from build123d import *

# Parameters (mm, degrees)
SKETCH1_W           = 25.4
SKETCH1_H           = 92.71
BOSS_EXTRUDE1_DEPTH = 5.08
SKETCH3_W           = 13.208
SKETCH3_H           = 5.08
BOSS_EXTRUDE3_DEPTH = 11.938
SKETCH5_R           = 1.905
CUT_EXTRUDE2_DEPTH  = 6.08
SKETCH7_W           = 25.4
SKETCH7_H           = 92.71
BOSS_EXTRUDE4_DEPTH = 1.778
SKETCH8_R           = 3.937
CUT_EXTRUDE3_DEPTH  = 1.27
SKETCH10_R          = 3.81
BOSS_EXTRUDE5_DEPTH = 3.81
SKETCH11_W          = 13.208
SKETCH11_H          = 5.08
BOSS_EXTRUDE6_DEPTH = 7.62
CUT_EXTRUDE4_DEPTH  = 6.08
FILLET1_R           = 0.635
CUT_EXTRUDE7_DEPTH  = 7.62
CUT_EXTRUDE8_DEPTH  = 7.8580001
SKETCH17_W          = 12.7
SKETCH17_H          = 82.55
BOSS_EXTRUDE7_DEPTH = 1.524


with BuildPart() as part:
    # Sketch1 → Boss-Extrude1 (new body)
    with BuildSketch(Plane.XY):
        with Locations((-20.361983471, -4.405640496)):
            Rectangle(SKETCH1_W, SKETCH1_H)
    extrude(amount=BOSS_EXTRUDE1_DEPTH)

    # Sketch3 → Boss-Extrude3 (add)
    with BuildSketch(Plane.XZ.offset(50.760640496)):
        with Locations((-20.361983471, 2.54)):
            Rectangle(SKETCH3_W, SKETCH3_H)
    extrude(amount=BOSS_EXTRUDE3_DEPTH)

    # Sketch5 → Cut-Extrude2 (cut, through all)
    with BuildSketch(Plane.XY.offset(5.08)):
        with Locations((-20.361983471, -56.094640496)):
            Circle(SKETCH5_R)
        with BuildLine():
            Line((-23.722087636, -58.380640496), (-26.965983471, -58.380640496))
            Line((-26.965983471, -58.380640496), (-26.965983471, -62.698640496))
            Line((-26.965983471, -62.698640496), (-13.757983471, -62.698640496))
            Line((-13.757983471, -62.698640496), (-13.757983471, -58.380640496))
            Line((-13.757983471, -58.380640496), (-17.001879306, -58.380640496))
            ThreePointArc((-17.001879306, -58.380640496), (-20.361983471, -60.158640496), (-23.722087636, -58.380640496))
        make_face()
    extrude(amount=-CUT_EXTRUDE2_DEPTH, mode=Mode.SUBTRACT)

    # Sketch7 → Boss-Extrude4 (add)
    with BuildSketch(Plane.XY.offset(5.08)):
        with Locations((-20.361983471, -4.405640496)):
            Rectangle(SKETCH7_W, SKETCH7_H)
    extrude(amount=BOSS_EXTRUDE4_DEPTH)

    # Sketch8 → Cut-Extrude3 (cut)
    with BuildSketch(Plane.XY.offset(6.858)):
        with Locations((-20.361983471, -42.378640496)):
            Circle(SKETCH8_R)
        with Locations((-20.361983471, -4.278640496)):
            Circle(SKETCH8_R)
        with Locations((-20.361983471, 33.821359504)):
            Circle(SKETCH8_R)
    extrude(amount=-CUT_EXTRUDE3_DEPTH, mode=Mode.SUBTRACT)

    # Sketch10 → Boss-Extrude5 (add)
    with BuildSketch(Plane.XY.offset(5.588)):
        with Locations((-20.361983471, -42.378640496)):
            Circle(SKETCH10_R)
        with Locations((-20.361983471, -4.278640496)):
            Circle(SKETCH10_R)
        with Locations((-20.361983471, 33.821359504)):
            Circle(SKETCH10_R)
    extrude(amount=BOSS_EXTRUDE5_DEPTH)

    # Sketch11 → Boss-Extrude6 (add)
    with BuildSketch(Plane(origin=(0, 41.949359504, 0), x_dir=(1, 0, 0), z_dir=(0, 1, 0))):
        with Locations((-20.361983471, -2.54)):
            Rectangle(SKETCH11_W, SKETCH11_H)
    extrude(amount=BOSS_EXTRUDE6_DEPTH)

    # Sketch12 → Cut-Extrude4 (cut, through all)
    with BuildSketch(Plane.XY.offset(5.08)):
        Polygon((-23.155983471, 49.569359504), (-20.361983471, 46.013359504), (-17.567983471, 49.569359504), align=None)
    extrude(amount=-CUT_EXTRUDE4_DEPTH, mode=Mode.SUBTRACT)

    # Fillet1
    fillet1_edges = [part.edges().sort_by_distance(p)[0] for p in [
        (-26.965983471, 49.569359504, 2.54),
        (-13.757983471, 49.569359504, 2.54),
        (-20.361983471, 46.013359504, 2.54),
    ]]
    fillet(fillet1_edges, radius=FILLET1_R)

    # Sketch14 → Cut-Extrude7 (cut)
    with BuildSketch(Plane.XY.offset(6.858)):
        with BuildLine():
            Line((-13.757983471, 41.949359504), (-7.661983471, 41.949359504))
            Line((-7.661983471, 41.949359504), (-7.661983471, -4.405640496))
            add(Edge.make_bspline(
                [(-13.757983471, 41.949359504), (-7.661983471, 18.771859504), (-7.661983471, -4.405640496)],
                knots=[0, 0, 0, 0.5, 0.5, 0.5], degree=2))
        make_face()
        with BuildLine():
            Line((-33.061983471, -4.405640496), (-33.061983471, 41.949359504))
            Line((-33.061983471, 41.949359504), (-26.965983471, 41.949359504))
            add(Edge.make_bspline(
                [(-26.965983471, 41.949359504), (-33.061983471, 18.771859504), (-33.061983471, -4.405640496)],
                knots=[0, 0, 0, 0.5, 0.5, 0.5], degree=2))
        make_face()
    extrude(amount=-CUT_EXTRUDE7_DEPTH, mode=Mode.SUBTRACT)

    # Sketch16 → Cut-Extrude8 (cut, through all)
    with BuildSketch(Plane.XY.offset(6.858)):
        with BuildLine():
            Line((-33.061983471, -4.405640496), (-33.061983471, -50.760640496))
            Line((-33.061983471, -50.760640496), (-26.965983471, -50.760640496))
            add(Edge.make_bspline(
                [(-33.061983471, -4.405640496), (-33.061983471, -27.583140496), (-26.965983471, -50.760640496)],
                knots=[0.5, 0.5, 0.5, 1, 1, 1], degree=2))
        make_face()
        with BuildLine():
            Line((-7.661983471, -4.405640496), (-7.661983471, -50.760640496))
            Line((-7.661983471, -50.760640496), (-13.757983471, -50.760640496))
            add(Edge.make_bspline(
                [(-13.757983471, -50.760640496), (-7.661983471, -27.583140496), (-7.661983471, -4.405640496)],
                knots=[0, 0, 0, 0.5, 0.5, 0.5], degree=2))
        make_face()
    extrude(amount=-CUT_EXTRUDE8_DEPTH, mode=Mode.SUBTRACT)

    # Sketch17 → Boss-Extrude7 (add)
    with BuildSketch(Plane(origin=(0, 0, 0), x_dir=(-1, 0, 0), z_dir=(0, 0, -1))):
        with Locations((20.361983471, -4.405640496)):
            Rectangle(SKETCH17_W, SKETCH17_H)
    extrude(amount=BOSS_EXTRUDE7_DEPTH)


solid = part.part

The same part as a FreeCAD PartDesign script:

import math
import FreeCAD as App
import Part
import Sketcher

V = App.Vector
Q = App.Units.Quantity


def edges_at(feature, points):
    """Names of the edges that pass closest to the given points."""
    edges = feature.Shape.Edges
    near = lambda p: min(range(len(edges)), key=lambda i: edges[i].distToShape(Part.Vertex(*p))[0])
    return sorted({f"Edge{near(p) + 1}" for p in points})

doc = App.newDocument("Part")
body = doc.addObject("PartDesign::Body", "Body")

# Sketch on XY plane
sketch1 = body.newObject("Sketcher::SketchObject", "Sketch")
sketch1.AttachmentSupport = (doc.getObject("XY_Plane"), [""])
sketch1.MapMode = "FlatFace"
sketch1.addGeometry([
    Part.LineSegment(V(-33.061983, 41.94936, 0), V(-33.061983, -50.76064, 0)),
    Part.LineSegment(V(-33.061983, -50.76064, 0), V(-7.661983, -50.76064, 0)),
    Part.LineSegment(V(-7.661983, -50.76064, 0), V(-7.661983, 41.94936, 0)),
    Part.LineSegment(V(-7.661983, 41.94936, 0), V(-33.061983, 41.94936, 0)),
], False)
sketch1.addConstraint([
    Sketcher.Constraint("Coincident", 0, 2, 1, 1),
    Sketcher.Constraint("Coincident", 1, 2, 2, 1),
    Sketcher.Constraint("Coincident", 2, 2, 3, 1),
    Sketcher.Constraint("Coincident", 3, 2, 0, 1),
    Sketcher.Constraint("Vertical", 0),
    Sketcher.Constraint("Horizontal", 1),
    Sketcher.Constraint("Vertical", 2),
    Sketcher.Constraint("Horizontal", 3),
    Sketcher.Constraint("DistanceX", 1, 1, 1, 2, Q("1 in")),
    Sketcher.Constraint("DistanceY", 0, 2, 0, 1, Q("3.65 in")),
    Sketcher.Constraint("DistanceY", 0, 2, -1, 1, Q("50.76064 mm")),
    Sketcher.Constraint("DistanceX", 0, 2, -1, 1, Q("33.061983 mm")),
])
pad1 = body.newObject("PartDesign::Pad", "Pad")
pad1.Profile = sketch1
pad1.Length = Q("0.2 in")

# Sketch on XZ plane
sketch2 = body.newObject("Sketcher::SketchObject", "Sketch001")
sketch2.AttachmentSupport = (doc.getObject("XZ_Plane"), [""])
sketch2.MapMode = "FlatFace"
sketch2.AttachmentOffset = App.Placement(V(0, 0, 50.76064), App.Rotation())
sketch2.addGeometry([
    Part.LineSegment(V(-26.965983, 5.08, 0), V(-26.965983, 0, 0)),
    Part.LineSegment(V(-26.965983, 0, 0), V(-13.757983, 0, 0)),
    Part.LineSegment(V(-13.757983, 0, 0), V(-13.757983, 5.08, 0)),
    Part.LineSegment(V(-13.757983, 5.08, 0), V(-26.965983, 5.08, 0)),
], False)
sketch2.addConstraint([
    Sketcher.Constraint("Coincident", 0, 2, 1, 1),
    Sketcher.Constraint("Coincident", 1, 2, 2, 1),
    Sketcher.Constraint("Coincident", 2, 2, 3, 1),
    Sketcher.Constraint("Coincident", 3, 2, 0, 1),
    Sketcher.Constraint("Vertical", 0),
    Sketcher.Constraint("Horizontal", 1),
    Sketcher.Constraint("Vertical", 2),
    Sketcher.Constraint("Horizontal", 3),
    Sketcher.Constraint("PointOnObject", 0, 2, -1),
    Sketcher.Constraint("DistanceY", 0, 2, 0, 1, Q("0.2 in")),
    Sketcher.Constraint("DistanceX", 1, 1, 1, 2, Q("0.52 in")),
    Sketcher.Constraint("DistanceX", 0, 2, -1, 1, Q("26.965983 mm")),
])
pad2 = body.newObject("PartDesign::Pad", "Pad001")
pad2.Profile = sketch2
pad2.Length = Q("0.47 in")

# Sketch on XY plane
sketch3 = body.newObject("Sketcher::SketchObject", "Sketch002")
sketch3.AttachmentSupport = (doc.getObject("XY_Plane"), [""])
sketch3.MapMode = "FlatFace"
sketch3.AttachmentOffset = App.Placement(V(0, 0, 0.2 * 25.4), App.Rotation())
sketch3.addGeometry([
    Part.Circle(V(-20.361983, -56.09464, 0), V(0, 0, 1), 1.905),  # 0
    Part.LineSegment(V(-23.722088, -58.38064, 0), V(-26.965983, -58.38064, 0)),  # 1
    Part.LineSegment(V(-26.965983, -58.38064, 0), V(-26.965983, -62.69864, 0)),  # 2
    Part.LineSegment(V(-26.965983, -62.69864, 0), V(-13.757983, -62.69864, 0)),  # 3
    Part.LineSegment(V(-13.757983, -62.69864, 0), V(-13.757983, -58.38064, 0)),  # 4
    Part.LineSegment(V(-13.757983, -58.38064, 0), V(-17.001879, -58.38064, 0)),  # 5
    Part.ArcOfCircle(Part.Circle(V(-20.361983, -56.09464, 0), V(0, 0, 1), 4.064), math.radians(-145.771134), math.radians(-34.228866)),  # 6
], False)
sketch3.addConstraint([
    Sketcher.Constraint("Coincident", 1, 2, 2, 1),
    Sketcher.Constraint("Coincident", 2, 2, 3, 1),
    Sketcher.Constraint("Coincident", 3, 2, 4, 1),
    Sketcher.Constraint("Coincident", 4, 2, 5, 1),
    Sketcher.Constraint("Coincident", 5, 2, 6, 2),
    Sketcher.Constraint("Coincident", 6, 1, 1, 1),
    Sketcher.Constraint("Horizontal", 1),
    Sketcher.Constraint("Vertical", 2),
    Sketcher.Constraint("Horizontal", 3),
    Sketcher.Constraint("Vertical", 4),
    Sketcher.Constraint("Horizontal", 5),
    Sketcher.Constraint("Coincident", 6, 3, 0, 3),
    Sketcher.Constraint("Horizontal", 1, 2, 4, 2),
    Sketcher.Constraint("Equal", 1, 5),
    Sketcher.Constraint("Diameter", 0, Q("0.15 in")),
    Sketcher.Constraint("Radius", 6, Q("0.16 in")),
    Sketcher.Constraint("DistanceX", 3, 1, 3, 2, Q("0.52 in")),
    Sketcher.Constraint("DistanceY", 2, 2, 2, 1, Q("0.17 in")),
    Sketcher.Constraint("DistanceY", 1, 2, 0, 3, Q("0.09 in")),
    Sketcher.Constraint("DistanceY", 0, 3, -1, 1, Q("56.09464 mm")),
    Sketcher.Constraint("DistanceX", 5, 2, -1, 1, Q("17.001879 mm")),
])
pocket1 = body.newObject("PartDesign::Pocket", "Pocket")
pocket1.Profile = sketch3
pocket1.Type = "ThroughAll"

# Sketch on XY plane
sketch4 = body.newObject("Sketcher::SketchObject", "Sketch003")
sketch4.AttachmentSupport = (doc.getObject("XY_Plane"), [""])
sketch4.MapMode = "FlatFace"
sketch4.AttachmentOffset = App.Placement(V(0, 0, 0.2 * 25.4), App.Rotation())
sketch4.addGeometry([
    Part.LineSegment(V(-33.061983, 41.94936, 0), V(-33.061983, -50.76064, 0)),
    Part.LineSegment(V(-33.061983, -50.76064, 0), V(-7.661983, -50.76064, 0)),
    Part.LineSegment(V(-7.661983, -50.76064, 0), V(-7.661983, 41.94936, 0)),
    Part.LineSegment(V(-7.661983, 41.94936, 0), V(-33.061983, 41.94936, 0)),
], False)
sketch4.addConstraint([
    Sketcher.Constraint("Coincident", 0, 2, 1, 1),
    Sketcher.Constraint("Coincident", 1, 2, 2, 1),
    Sketcher.Constraint("Coincident", 2, 2, 3, 1),
    Sketcher.Constraint("Coincident", 3, 2, 0, 1),
    Sketcher.Constraint("Vertical", 0),
    Sketcher.Constraint("Horizontal", 1),
    Sketcher.Constraint("Vertical", 2),
    Sketcher.Constraint("Horizontal", 3),
    Sketcher.Constraint("DistanceX", 1, 1, 1, 2, Q("1 in")),
    Sketcher.Constraint("DistanceY", 0, 2, 0, 1, Q("3.65 in")),
    Sketcher.Constraint("DistanceY", 0, 2, -1, 1, Q("50.76064 mm")),
    Sketcher.Constraint("DistanceX", 0, 2, -1, 1, Q("33.061983 mm")),
])
pad3 = body.newObject("PartDesign::Pad", "Pad002")
pad3.Profile = sketch4
pad3.Length = Q("0.07 in")

# Sketch on XY plane
sketch5 = body.newObject("Sketcher::SketchObject", "Sketch004")
sketch5.AttachmentSupport = (doc.getObject("XY_Plane"), [""])
sketch5.MapMode = "FlatFace"
sketch5.AttachmentOffset = App.Placement(V(0, 0, 0.27 * 25.4), App.Rotation())
sketch5.addGeometry([
    Part.Circle(V(-20.361983, -42.37864, 0), V(0, 0, 1), 3.937),
    Part.Circle(V(-20.361983, -4.27864, 0), V(0, 0, 1), 3.937),
    Part.Circle(V(-20.361983, 33.82136, 0), V(0, 0, 1), 3.937),
], False)
sketch5.addConstraint([
    Sketcher.Constraint("Equal", 0, 1),
    Sketcher.Constraint("Equal", 1, 2),
    Sketcher.Constraint("Vertical", 0, 3, 1, 3),
    Sketcher.Constraint("Vertical", 1, 3, 2, 3),
    Sketcher.Constraint("Diameter", 0, Q("0.31 in")),
    Sketcher.Constraint("DistanceY", 0, 3, 2, 3, Q("3 in")),
    Sketcher.Constraint("DistanceY", 0, 3, 1, 3, Q("1.5 in")),
    Sketcher.Constraint("DistanceY", 0, 3, -1, 1, Q("42.37864 mm")),
    Sketcher.Constraint("DistanceX", 0, 3, -1, 1, Q("20.361983 mm")),
])
pocket2 = body.newObject("PartDesign::Pocket", "Pocket001")
pocket2.Profile = sketch5
pocket2.Length = Q("0.05 in")

# Sketch on XY plane
sketch6 = body.newObject("Sketcher::SketchObject", "Sketch005")
sketch6.AttachmentSupport = (doc.getObject("XY_Plane"), [""])
sketch6.MapMode = "FlatFace"
sketch6.AttachmentOffset = App.Placement(V(0, 0, 0.22 * 25.4), App.Rotation())
sketch6.addGeometry([
    Part.Circle(V(-20.361983, -42.37864, 0), V(0, 0, 1), 3.81),
    Part.Circle(V(-20.361983, -4.27864, 0), V(0, 0, 1), 3.81),
    Part.Circle(V(-20.361983, 33.82136, 0), V(0, 0, 1), 3.81),
], False)
sketch6.addConstraint([
    Sketcher.Constraint("Equal", 0, 1),
    Sketcher.Constraint("Equal", 1, 2),
    Sketcher.Constraint("Vertical", 0, 3, 1, 3),
    Sketcher.Constraint("Vertical", 1, 3, 2, 3),
    Sketcher.Constraint("Diameter", 0, Q("0.3 in")),
    Sketcher.Constraint("DistanceY", 0, 3, 2, 3, Q("3 in")),
    Sketcher.Constraint("DistanceY", 0, 3, 1, 3, Q("1.5 in")),
    Sketcher.Constraint("DistanceY", 0, 3, -1, 1, Q("42.37864 mm")),
    Sketcher.Constraint("DistanceX", 0, 3, -1, 1, Q("20.361983 mm")),
])
pad4 = body.newObject("PartDesign::Pad", "Pad003")
pad4.Profile = sketch6
pad4.Length = Q("0.15 in")

# Sketch on XZ plane
sketch7 = body.newObject("Sketcher::SketchObject", "Sketch006")
sketch7.AttachmentSupport = (doc.getObject("XZ_Plane"), [""])
sketch7.MapMode = "FlatFace"
sketch7.AttachmentOffset = App.Placement(V(0, 0, -41.94936), App.Rotation())
sketch7.addGeometry([
    Part.LineSegment(V(-26.965983, 0, 0), V(-26.965983, 5.08, 0)),
    Part.LineSegment(V(-26.965983, 5.08, 0), V(-13.757983, 5.08, 0)),
    Part.LineSegment(V(-13.757983, 5.08, 0), V(-13.757983, 0, 0)),
    Part.LineSegment(V(-13.757983, 0, 0), V(-26.965983, 0, 0)),
], False)
sketch7.addConstraint([
    Sketcher.Constraint("Coincident", 0, 2, 1, 1),
    Sketcher.Constraint("Coincident", 1, 2, 2, 1),
    Sketcher.Constraint("Coincident", 2, 2, 3, 1),
    Sketcher.Constraint("Coincident", 3, 2, 0, 1),
    Sketcher.Constraint("Vertical", 0),
    Sketcher.Constraint("Horizontal", 1),
    Sketcher.Constraint("Vertical", 2),
    Sketcher.Constraint("Horizontal", 3),
    Sketcher.Constraint("PointOnObject", 2, 2, -1),
    Sketcher.Constraint("DistanceY", 0, 1, 0, 2, Q("0.2 in")),
    Sketcher.Constraint("DistanceX", 1, 1, 1, 2, Q("0.52 in")),
    Sketcher.Constraint("DistanceX", 0, 2, -1, 1, Q("26.965983 mm")),
])
pad5 = body.newObject("PartDesign::Pad", "Pad004")
pad5.Profile = sketch7
pad5.Length = Q("0.3 in")
pad5.Reversed = True

# Sketch on XY plane
sketch8 = body.newObject("Sketcher::SketchObject", "Sketch007")
sketch8.AttachmentSupport = (doc.getObject("XY_Plane"), [""])
sketch8.MapMode = "FlatFace"
sketch8.AttachmentOffset = App.Placement(V(0, 0, 0.2 * 25.4), App.Rotation())
sketch8.addGeometry([
    Part.LineSegment(V(-23.155983, 49.56936, 0), V(-20.361983, 46.01336, 0)),
    Part.LineSegment(V(-20.361983, 46.01336, 0), V(-17.567983, 49.56936, 0)),
    Part.LineSegment(V(-17.567983, 49.56936, 0), V(-23.155983, 49.56936, 0)),
], False)
sketch8.addConstraint([
    Sketcher.Constraint("Coincident", 0, 2, 1, 1),
    Sketcher.Constraint("Coincident", 1, 2, 2, 1),
    Sketcher.Constraint("Coincident", 2, 2, 0, 1),
    Sketcher.Constraint("Horizontal", 2),
    Sketcher.Constraint("Equal", 0, 1),
    Sketcher.Constraint("DistanceX", 2, 2, 2, 1, Q("0.22 in")),
    Sketcher.Constraint("DistanceY", 0, 2, 1, 2, Q("0.14 in")),
    Sketcher.Constraint("DistanceY", -1, 1, 0, 2, Q("46.01336 mm")),
    Sketcher.Constraint("DistanceX", 0, 2, -1, 1, Q("20.361983 mm")),
])
pocket3 = body.newObject("PartDesign::Pocket", "Pocket002")
pocket3.Profile = sketch8
pocket3.Type = "ThroughAll"
doc.recompute()

fillet = body.newObject("PartDesign::Fillet", "Fillet")
fillet.Base = (pocket3, edges_at(pocket3, [(-26.966, 49.569, 2.54), (-13.758, 49.569, 2.54), (-20.362, 46.013, 2.54)]))
fillet.Radius = Q("0.025 in")

# Sketch on XY plane
sketch9 = body.newObject("Sketcher::SketchObject", "Sketch008")
sketch9.AttachmentSupport = (doc.getObject("XY_Plane"), [""])
sketch9.MapMode = "FlatFace"
sketch9.AttachmentOffset = App.Placement(V(0, 0, 0.27 * 25.4), App.Rotation())
sketch9.addGeometry([
    Part.LineSegment(V(-7.661983, 41.94936, 0), V(-13.757983, 41.94936, 0)),  # 0
    Part.BSplineCurve([V(-13.757983, 41.94936, 0), V(-7.661983, 18.77186, 0), V(-7.661983, -4.40564, 0)], [3, 3], [0, 0.5], False, 2, [1, 1, 1], False),  # 1
    Part.LineSegment(V(-7.661983, -4.40564, 0), V(-7.661983, 41.94936, 0)),  # 2
    Part.LineSegment(V(-33.061983, 41.94936, 0), V(-33.061983, -4.40564, 0)),  # 3
    Part.BSplineCurve([V(-26.965983, 41.94936, 0), V(-33.061983, 18.77186, 0), V(-33.061983, -4.40564, 0)], [3, 3], [0, 0.5], False, 2, [1, 1, 1], False),  # 4
    Part.LineSegment(V(-26.965983, 41.94936, 0), V(-33.061983, 41.94936, 0)),  # 5
], False)
sketch9.addConstraint([
    Sketcher.Constraint("Block", 1),
    Sketcher.Constraint("Block", 4),
    Sketcher.Constraint("Coincident", 0, 2, 1, 1),
    Sketcher.Constraint("Coincident", 1, 2, 2, 1),
    Sketcher.Constraint("Coincident", 2, 2, 0, 1),
    Sketcher.Constraint("Coincident", 3, 2, 4, 2),
    Sketcher.Constraint("Coincident", 4, 1, 5, 1),
    Sketcher.Constraint("Coincident", 5, 2, 3, 1),
    Sketcher.Constraint("Horizontal", 0),
    Sketcher.Constraint("Vertical", 2),
    Sketcher.Constraint("Vertical", 3),
    Sketcher.Constraint("Horizontal", 5),
])
pocket4 = body.newObject("PartDesign::Pocket", "Pocket003")
pocket4.Profile = sketch9
pocket4.Length = Q("0.3 in")

# Sketch on XY plane
sketch10 = body.newObject("Sketcher::SketchObject", "Sketch009")
sketch10.AttachmentSupport = (doc.getObject("XY_Plane"), [""])
sketch10.MapMode = "FlatFace"
sketch10.AttachmentOffset = App.Placement(V(0, 0, 0.27 * 25.4), App.Rotation())
sketch10.addGeometry([
    Part.LineSegment(V(-33.061983, -4.40564, 0), V(-33.061983, -50.76064, 0)),  # 0
    Part.LineSegment(V(-33.061983, -50.76064, 0), V(-26.965983, -50.76064, 0)),  # 1
    Part.BSplineCurve([V(-33.061983, -4.40564, 0), V(-33.061983, -27.58314, 0), V(-26.965983, -50.76064, 0)], [3, 3], [0.5, 1], False, 2, [1, 1, 1], False),  # 2
    Part.LineSegment(V(-7.661983, -50.76064, 0), V(-7.661983, -4.40564, 0)),  # 3
    Part.BSplineCurve([V(-13.757983, -50.76064, 0), V(-7.661983, -27.58314, 0), V(-7.661983, -4.40564, 0)], [3, 3], [0, 0.5], False, 2, [1, 1, 1], False),  # 4
    Part.LineSegment(V(-13.757983, -50.76064, 0), V(-7.661983, -50.76064, 0)),  # 5
], False)
sketch10.addConstraint([
    Sketcher.Constraint("Block", 2),
    Sketcher.Constraint("Block", 4),
    Sketcher.Constraint("Coincident", 0, 2, 1, 1),
    Sketcher.Constraint("Coincident", 1, 2, 2, 2),
    Sketcher.Constraint("Coincident", 2, 1, 0, 1),
    Sketcher.Constraint("Coincident", 3, 2, 4, 2),
    Sketcher.Constraint("Coincident", 4, 1, 5, 1),
    Sketcher.Constraint("Coincident", 5, 2, 3, 1),
    Sketcher.Constraint("Vertical", 0),
    Sketcher.Constraint("Horizontal", 1),
    Sketcher.Constraint("Vertical", 3),
    Sketcher.Constraint("Horizontal", 5),
])
pocket5 = body.newObject("PartDesign::Pocket", "Pocket004")
pocket5.Profile = sketch10
pocket5.Type = "ThroughAll"

# Sketch on XY plane
sketch11 = body.newObject("Sketcher::SketchObject", "Sketch010")
sketch11.AttachmentSupport = (doc.getObject("XY_Plane"), [""])
sketch11.MapMode = "FlatFace"
sketch11.addGeometry([
    Part.LineSegment(V(-14.011983, 36.86936, 0), V(-14.011983, -45.68064, 0)),
    Part.LineSegment(V(-14.011983, -45.68064, 0), V(-26.711983, -45.68064, 0)),
    Part.LineSegment(V(-26.711983, -45.68064, 0), V(-26.711983, 36.86936, 0)),
    Part.LineSegment(V(-26.711983, 36.86936, 0), V(-14.011983, 36.86936, 0)),
], False)
sketch11.addConstraint([
    Sketcher.Constraint("Coincident", 0, 2, 1, 1),
    Sketcher.Constraint("Coincident", 1, 2, 2, 1),
    Sketcher.Constraint("Coincident", 2, 2, 3, 1),
    Sketcher.Constraint("Coincident", 3, 2, 0, 1),
    Sketcher.Constraint("Vertical", 0),
    Sketcher.Constraint("Horizontal", 1),
    Sketcher.Constraint("Vertical", 2),
    Sketcher.Constraint("Horizontal", 3),
    Sketcher.Constraint("DistanceX", 1, 2, 1, 1, Q("0.5 in")),
    Sketcher.Constraint("DistanceY", 0, 2, 0, 1, Q("3.25 in")),
    Sketcher.Constraint("DistanceY", 0, 2, -1, 1, Q("45.68064 mm")),
    Sketcher.Constraint("DistanceX", 0, 2, -1, 1, Q("14.011983 mm")),
])
pad6 = body.newObject("PartDesign::Pad", "Pad005")
pad6.Profile = sketch11
pad6.Length = Q("0.06 in")
pad6.Reversed = True

doc.recompute()
